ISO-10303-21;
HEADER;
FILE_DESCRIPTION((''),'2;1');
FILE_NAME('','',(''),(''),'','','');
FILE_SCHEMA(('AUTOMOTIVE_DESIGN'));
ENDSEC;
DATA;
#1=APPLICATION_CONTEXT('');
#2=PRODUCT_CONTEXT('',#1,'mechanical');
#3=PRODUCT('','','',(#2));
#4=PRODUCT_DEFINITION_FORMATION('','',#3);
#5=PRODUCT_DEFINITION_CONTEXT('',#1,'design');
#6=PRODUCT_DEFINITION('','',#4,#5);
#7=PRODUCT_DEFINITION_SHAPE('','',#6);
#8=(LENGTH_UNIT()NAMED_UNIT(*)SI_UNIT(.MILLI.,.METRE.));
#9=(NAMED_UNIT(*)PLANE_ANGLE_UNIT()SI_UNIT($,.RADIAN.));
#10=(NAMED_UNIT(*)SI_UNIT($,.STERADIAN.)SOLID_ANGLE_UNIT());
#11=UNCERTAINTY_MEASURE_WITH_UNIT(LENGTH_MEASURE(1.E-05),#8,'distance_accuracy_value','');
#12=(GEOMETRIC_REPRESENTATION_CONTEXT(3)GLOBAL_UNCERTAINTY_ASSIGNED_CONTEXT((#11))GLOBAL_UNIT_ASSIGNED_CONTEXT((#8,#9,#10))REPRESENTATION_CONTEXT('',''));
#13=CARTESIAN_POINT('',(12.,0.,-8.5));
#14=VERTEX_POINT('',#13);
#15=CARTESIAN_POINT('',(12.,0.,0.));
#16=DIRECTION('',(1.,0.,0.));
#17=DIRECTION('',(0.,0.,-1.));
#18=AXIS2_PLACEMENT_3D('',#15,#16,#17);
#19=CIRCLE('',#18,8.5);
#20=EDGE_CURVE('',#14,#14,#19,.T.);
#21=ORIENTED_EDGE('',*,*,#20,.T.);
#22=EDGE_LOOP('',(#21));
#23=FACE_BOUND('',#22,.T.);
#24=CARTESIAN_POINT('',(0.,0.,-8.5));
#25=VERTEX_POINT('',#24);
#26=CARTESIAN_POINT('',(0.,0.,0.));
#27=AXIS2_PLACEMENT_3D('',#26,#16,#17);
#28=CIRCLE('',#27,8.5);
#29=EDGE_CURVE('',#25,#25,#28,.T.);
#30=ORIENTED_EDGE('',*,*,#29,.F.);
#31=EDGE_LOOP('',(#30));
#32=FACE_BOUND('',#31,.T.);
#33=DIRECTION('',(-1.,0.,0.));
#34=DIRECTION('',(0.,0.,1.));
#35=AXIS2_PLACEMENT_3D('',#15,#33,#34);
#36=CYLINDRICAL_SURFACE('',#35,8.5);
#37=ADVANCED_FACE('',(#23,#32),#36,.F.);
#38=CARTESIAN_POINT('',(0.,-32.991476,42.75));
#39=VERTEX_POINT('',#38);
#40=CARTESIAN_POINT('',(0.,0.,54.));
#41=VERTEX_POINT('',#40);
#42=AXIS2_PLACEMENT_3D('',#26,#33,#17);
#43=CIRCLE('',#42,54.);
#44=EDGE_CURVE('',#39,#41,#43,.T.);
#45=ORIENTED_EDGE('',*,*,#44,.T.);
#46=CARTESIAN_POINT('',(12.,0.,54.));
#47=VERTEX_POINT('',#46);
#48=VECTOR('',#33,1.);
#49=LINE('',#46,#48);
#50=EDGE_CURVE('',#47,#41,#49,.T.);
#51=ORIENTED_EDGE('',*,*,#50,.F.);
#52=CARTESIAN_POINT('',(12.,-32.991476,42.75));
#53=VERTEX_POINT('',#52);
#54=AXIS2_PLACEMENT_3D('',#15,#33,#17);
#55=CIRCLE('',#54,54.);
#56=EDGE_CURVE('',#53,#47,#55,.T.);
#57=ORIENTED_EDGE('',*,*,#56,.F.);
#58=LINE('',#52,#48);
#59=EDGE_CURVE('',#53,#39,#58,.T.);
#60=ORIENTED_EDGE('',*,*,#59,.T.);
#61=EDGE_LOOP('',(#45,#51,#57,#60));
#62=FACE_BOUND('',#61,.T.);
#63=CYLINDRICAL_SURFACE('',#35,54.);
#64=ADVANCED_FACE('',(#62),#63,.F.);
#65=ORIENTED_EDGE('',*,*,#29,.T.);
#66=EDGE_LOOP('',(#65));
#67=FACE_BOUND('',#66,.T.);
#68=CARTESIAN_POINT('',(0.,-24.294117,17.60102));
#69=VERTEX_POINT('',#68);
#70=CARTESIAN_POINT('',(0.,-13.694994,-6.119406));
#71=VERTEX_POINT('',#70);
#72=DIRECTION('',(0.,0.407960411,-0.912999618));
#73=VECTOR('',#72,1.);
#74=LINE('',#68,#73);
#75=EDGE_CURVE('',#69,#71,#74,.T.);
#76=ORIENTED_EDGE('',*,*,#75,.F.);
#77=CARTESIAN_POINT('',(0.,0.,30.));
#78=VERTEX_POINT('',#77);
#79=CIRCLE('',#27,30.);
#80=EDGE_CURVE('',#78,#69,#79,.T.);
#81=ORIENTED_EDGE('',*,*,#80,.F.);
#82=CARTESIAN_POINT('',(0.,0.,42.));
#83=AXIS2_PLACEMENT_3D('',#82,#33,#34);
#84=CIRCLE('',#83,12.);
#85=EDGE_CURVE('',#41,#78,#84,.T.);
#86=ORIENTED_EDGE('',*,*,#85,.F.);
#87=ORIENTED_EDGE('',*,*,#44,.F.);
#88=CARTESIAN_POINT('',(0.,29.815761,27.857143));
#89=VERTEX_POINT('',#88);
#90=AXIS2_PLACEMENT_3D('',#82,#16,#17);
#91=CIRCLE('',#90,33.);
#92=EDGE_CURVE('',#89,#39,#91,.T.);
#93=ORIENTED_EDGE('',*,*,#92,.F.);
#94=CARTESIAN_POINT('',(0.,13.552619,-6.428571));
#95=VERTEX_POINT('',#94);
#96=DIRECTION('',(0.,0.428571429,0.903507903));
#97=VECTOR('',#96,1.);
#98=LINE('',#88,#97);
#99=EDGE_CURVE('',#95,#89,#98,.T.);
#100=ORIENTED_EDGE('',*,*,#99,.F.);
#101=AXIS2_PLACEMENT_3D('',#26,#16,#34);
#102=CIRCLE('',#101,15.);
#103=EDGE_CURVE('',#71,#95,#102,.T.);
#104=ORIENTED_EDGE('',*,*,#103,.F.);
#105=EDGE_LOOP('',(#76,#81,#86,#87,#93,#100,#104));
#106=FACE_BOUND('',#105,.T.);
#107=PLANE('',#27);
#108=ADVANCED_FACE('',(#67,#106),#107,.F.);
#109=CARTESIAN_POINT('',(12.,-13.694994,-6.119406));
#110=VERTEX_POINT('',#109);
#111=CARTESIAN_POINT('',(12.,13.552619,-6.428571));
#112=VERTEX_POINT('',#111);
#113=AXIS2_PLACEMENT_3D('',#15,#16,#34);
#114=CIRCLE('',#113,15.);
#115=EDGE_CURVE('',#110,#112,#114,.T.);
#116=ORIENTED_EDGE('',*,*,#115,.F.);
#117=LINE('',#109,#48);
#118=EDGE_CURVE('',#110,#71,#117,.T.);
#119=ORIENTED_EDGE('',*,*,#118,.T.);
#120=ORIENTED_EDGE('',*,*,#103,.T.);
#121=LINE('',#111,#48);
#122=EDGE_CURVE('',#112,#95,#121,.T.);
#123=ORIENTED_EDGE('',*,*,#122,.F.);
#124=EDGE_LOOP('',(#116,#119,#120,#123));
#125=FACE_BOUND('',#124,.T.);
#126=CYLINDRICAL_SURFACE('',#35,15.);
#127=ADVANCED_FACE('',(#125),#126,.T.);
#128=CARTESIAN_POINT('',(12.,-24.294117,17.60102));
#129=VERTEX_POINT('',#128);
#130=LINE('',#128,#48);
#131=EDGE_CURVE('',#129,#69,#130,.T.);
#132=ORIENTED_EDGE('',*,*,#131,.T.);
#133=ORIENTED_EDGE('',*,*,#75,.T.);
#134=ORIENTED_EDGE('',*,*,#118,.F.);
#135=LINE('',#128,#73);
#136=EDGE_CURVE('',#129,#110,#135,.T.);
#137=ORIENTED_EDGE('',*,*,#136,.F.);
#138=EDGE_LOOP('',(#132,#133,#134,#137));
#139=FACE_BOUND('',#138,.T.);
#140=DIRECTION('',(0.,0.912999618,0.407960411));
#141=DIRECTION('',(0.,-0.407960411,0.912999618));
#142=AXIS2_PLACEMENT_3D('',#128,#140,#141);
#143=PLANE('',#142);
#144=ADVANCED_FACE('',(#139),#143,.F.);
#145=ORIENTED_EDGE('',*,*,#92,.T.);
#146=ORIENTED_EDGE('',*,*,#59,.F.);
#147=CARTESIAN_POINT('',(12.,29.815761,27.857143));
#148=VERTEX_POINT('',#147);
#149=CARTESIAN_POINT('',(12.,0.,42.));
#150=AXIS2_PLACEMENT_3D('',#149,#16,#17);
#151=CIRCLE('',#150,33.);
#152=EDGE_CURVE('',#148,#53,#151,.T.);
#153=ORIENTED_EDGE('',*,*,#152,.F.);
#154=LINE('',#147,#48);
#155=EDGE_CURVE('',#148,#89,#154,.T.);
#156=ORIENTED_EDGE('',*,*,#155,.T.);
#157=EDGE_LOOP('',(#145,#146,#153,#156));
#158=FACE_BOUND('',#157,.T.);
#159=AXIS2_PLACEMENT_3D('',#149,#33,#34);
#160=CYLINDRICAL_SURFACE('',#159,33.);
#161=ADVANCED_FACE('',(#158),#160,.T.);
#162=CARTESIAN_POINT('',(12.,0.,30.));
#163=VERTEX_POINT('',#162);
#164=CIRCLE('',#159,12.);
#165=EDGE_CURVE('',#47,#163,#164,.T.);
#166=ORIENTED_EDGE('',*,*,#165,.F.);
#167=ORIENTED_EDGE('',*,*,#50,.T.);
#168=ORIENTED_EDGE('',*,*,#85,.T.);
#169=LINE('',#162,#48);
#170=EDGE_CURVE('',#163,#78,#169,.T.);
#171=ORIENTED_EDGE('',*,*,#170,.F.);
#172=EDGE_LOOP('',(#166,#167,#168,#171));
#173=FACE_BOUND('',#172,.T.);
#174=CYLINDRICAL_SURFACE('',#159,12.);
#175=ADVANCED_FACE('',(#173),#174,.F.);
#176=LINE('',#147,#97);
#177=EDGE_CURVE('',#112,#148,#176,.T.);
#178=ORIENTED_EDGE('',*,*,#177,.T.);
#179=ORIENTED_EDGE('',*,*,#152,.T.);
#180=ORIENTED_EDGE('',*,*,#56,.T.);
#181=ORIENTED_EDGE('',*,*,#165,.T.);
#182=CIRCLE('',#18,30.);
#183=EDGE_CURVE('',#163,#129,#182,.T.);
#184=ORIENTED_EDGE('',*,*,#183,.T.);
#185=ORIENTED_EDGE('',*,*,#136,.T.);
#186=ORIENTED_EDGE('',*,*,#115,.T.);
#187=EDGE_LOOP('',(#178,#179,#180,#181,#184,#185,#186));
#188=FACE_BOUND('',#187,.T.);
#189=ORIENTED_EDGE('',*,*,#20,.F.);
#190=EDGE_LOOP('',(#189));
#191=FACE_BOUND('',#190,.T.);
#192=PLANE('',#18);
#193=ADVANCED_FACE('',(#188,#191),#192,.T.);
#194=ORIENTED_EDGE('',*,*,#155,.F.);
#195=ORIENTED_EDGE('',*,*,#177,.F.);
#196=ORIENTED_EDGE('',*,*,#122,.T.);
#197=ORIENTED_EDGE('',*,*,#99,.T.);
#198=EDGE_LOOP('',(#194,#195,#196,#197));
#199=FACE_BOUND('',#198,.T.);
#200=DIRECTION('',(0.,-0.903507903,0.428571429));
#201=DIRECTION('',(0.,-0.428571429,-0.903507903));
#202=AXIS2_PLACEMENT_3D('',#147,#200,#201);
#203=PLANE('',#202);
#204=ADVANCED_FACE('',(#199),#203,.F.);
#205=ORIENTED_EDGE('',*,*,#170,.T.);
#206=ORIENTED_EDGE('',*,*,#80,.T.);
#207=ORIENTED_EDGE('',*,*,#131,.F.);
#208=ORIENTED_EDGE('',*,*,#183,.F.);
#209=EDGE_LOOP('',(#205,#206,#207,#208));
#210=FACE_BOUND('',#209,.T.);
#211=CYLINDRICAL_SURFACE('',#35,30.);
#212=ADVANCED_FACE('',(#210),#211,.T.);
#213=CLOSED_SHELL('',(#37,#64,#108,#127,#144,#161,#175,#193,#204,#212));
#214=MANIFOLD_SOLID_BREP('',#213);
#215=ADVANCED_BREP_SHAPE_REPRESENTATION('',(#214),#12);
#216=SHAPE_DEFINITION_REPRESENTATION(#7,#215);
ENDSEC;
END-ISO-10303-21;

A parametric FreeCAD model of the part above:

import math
import FreeCAD as App
import Part
import Sketcher
Q = App.Units.Quantity

doc = App.newDocument("Part")
body = doc.addObject("PartDesign::Body", "Body")

# Sketch on YZ plane
sketch1 = body.newObject("Sketcher::SketchObject", "Sketch")
sketch1.AttachmentSupport = (doc.getObject("YZ_Plane"), [""])
sketch1.MapMode = "FlatFace"
sketch1.addGeometry([
    Part.LineSegment(App.Vector(-24, 18, 0), App.Vector(-14, -6, 0)),  # 0
    Part.ArcOfCircle(Part.Circle(App.Vector(0, 0, 0), App.Vector(0, 0, 1), 15), math.radians(-156), math.radians(-25)),  # 1
    Part.LineSegment(App.Vector(14, -6, 0), App.Vector(30, 28, 0)),  # 2
    Part.ArcOfCircle(Part.Circle(App.Vector(0, 42, 0), App.Vector(0, 0, 1), 33), math.radians(-25), math.radians(179)),  # 3
    Part.ArcOfCircle(Part.Circle(App.Vector(0, 0, 0), App.Vector(0, 0, 1), 54), math.radians(90), math.radians(128)),  # 4
    Part.ArcOfCircle(Part.Circle(App.Vector(0, 42, 0), App.Vector(0, 0, 1), 12), math.radians(-90), math.radians(90)),  # 5
    Part.ArcOfCircle(Part.Circle(App.Vector(0, 0, 0), App.Vector(0, 0, 1), 30), math.radians(90), math.radians(144)),  # 6
    Part.Circle(App.Vector(0, 0, 0), App.Vector(0, 0, 1), 8),  # 7
], False)
sketch1.addConstraint([
    Sketcher.Constraint("Tangent", 0, 2, 1, 1),
    Sketcher.Constraint("Tangent", 1, 2, 2, 1),
    Sketcher.Constraint("Tangent", 2, 2, 3, 1),
    Sketcher.Constraint("Coincident", 3, 2, 4, 2),
    Sketcher.Constraint("Tangent", 4, 1, 5, 2),
    Sketcher.Constraint("Tangent", 5, 1, 6, 1),
    Sketcher.Constraint("Coincident", 6, 2, 0, 1),
    Sketcher.Constraint("Coincident", 1, 3, -1, 1),
    Sketcher.Constraint("Coincident", 4, 3, -1, 1),
    Sketcher.Constraint("Coincident", 6, 3, -1, 1),
    Sketcher.Constraint("Coincident", 7, 3, -1, 1),
    Sketcher.Constraint("Coincident", 5, 3, 3, 3),
    Sketcher.Constraint("PointOnObject", 3, 3, -2),
    Sketcher.Constraint("Diameter", 7, Q("17 mm")),
    Sketcher.Constraint("Radius", 1, Q("15 mm")),
    Sketcher.Constraint("Radius", 3, Q("33 mm")),
    Sketcher.Constraint("Radius", 4, Q("54 mm")),
    Sketcher.Constraint("Radius", 5, Q("12 mm")),
    Sketcher.Constraint("DistanceY", -1, 1, 6, 2, Q("17.60102 mm")),
])
pad1 = body.newObject("PartDesign::Pad", "Pad")
pad1.Profile = sketch1
pad1.Length = 12

doc.recompute()
